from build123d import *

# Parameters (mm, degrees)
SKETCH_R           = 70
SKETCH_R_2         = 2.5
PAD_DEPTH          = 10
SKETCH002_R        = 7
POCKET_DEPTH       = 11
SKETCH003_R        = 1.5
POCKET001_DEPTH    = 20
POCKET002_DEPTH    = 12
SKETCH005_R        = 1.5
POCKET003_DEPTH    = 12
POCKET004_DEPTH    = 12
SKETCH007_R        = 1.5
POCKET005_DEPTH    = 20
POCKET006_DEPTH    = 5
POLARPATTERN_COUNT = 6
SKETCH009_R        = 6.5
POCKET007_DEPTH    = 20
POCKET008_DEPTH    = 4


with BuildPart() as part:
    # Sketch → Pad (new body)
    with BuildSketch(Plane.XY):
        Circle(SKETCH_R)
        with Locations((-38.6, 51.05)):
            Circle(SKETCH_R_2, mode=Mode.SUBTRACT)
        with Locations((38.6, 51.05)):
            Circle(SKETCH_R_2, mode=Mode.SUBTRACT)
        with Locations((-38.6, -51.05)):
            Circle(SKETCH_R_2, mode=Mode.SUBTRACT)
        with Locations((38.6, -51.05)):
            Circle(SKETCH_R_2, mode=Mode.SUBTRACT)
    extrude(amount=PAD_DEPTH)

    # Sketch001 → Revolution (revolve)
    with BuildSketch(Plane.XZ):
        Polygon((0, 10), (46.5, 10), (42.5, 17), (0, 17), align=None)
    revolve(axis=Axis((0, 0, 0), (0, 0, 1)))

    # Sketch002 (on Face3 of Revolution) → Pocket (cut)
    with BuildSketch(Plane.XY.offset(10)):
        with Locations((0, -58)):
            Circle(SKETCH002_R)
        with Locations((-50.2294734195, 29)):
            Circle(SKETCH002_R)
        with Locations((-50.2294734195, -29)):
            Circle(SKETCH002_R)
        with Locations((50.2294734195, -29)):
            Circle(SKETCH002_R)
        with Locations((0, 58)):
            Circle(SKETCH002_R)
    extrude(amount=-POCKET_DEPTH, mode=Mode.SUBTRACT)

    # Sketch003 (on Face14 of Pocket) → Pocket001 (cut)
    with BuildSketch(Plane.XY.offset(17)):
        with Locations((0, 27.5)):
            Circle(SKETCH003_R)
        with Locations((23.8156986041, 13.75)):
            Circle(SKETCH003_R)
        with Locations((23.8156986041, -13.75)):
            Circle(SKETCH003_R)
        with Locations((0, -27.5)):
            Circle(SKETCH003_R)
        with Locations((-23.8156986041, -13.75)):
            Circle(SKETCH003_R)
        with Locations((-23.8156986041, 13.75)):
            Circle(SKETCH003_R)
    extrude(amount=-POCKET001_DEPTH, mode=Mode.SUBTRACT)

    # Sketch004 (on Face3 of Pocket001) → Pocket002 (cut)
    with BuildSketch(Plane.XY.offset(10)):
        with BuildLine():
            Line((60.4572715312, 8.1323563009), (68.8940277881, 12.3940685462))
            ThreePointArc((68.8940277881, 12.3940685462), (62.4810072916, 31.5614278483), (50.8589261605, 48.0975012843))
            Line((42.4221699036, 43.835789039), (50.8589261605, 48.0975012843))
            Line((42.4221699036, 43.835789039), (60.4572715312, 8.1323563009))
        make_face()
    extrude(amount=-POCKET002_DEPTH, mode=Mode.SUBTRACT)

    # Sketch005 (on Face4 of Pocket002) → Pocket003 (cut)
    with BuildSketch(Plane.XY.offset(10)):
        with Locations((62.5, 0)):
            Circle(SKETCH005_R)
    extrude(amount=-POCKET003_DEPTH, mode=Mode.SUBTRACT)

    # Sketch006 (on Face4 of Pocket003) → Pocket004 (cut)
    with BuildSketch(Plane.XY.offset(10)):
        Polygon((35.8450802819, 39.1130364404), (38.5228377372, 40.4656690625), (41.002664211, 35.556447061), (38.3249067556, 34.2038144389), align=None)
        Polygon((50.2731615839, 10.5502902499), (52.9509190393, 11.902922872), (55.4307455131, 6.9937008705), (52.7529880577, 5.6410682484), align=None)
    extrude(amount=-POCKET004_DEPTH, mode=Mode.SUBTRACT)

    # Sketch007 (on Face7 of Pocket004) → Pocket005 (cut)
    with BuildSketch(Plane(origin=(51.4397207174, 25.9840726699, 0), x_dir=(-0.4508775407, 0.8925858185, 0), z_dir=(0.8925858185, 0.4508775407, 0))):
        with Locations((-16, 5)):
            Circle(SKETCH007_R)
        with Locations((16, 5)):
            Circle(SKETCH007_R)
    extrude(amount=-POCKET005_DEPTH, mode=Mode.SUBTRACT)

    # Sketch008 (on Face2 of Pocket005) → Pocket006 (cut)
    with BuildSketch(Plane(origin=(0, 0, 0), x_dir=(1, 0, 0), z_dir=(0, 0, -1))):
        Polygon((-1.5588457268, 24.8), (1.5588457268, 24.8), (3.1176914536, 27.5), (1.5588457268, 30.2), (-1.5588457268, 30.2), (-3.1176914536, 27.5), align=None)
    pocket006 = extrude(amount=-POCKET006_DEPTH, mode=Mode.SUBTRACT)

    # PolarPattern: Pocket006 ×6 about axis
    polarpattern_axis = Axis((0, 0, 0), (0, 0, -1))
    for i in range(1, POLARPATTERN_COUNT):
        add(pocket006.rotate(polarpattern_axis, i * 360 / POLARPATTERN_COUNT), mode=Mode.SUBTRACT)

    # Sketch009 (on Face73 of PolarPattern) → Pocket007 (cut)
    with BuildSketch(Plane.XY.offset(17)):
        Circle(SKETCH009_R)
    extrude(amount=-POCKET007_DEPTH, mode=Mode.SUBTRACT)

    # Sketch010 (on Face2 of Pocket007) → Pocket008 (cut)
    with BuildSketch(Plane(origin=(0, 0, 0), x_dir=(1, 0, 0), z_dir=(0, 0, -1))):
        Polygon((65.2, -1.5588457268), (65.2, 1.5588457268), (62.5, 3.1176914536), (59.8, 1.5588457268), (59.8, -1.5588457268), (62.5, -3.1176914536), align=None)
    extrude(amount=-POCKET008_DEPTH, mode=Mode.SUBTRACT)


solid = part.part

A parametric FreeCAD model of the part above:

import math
import FreeCAD as App
import Part
import Sketcher
Q = App.Units.Quantity


def add_polygon(sketch, points):
    """Adds a closed chain of lines whose ends are joined by coincident constraints."""
    first, n = sketch.GeometryCount, len(points)
    for a, b in zip(points, points[1:] + points[:1]):
        sketch.addGeometry(Part.LineSegment(App.Vector(*a, 0), App.Vector(*b, 0)), False)
    for i in range(n):
        sketch.addConstraint(Sketcher.Constraint("Coincident", first + i, 2, first + (i + 1) % n, 1))

doc = App.newDocument("Part")
params = doc.addObject("Spreadsheet::Sheet", "Params")
for row, (alias, value) in enumerate([
    ("sketch1_diameter", "140 mm"),
    ("sketch1_diameter2", "5 mm"),
    ("pad1_length", "10 mm"),
    ("sketch2_height", "7 mm"),
    ("sketch2_width", "46.5 mm"),
    ("sketch2_width2", "42.5 mm"),
    ("revolution_angle", "360 deg"),
    ("sketch3_diameter", "14 mm"),
    ("pocket1_length", "11 mm"),
    ("sketch4_diameter", "3 mm"),
    ("pocket2_length", "20 mm"),
    ("sketch5_radius", "70 mm"),
    ("sketch5_length", "40 mm"),
    ("pocket3_length", "12 mm"),
    ("sketch6_diameter", "3 mm"),
    ("pocket4_length", "12 mm"),
    ("sketch7_length", "3 mm"),
    ("sketch7_length2", "5.5 mm"),
    ("pocket5_length", "12 mm"),
    ("sketch8_diameter", "3 mm"),
    ("pocket6_length", "20 mm"),
    ("pocket7_length", "5 mm"),
    ("sketch10_diameter", "13 mm"),
    ("pocket8_length", "20 mm"),
    ("pocket9_length", "4 mm"),
], start=1):
    params.set(f"A{row}", alias)
    params.set(f"B{row}", "=" + value)
    params.setAlias(f"B{row}", alias)

body = doc.addObject("PartDesign::Body", "Body")

# Sketch on XY plane
sketch1 = body.newObject("Sketcher::SketchObject", "Sketch")
sketch1.AttachmentSupport = (doc.getObject("XY_Plane"), [""])
sketch1.MapMode = "FlatFace"
sketch1.addGeometry([
    Part.Circle(App.Vector(0, 0, 0), App.Vector(0, 0, 1), 70),  # 0
    Part.Circle(App.Vector(-38.6, -51, 0), App.Vector(0, 0, 1), 2.5),  # 1
    Part.Circle(App.Vector(38.6, -51, 0), App.Vector(0, 0, 1), 2.5),  # 2
    Part.Circle(App.Vector(-38.6, 51, 0), App.Vector(0, 0, 1), 2.5),  # 3
    Part.Circle(App.Vector(38.6, 51, 0), App.Vector(0, 0, 1), 2.5),  # 4
], False)
sketch1.addConstraint([
    Sketcher.Constraint("Coincident", 0, 3, -1, 1),
    Sketcher.Constraint("Equal", 1, 2),
    Sketcher.Constraint("Equal", 2, 3),
    Sketcher.Constraint("Equal", 3, 4),
    Sketcher.Constraint("Symmetric", 2, 3, 3, 3, -1, 1),
    Sketcher.Constraint("Symmetric", 1, 3, 4, 3, -1, 1),
    Sketcher.Constraint("Symmetric", 1, 3, 2, 3, -2),
    Sketcher.Constraint("Diameter", 0, Q("140 mm")),
    Sketcher.Constraint("Diameter", 1, Q("5 mm")),
    Sketcher.Constraint("DistanceX", 1, 3, -1, 1, Q("38.6 mm")),
    Sketcher.Constraint("DistanceY", 1, 3, 3, 3, Q("102.1 mm")),
])
sketch1.setExpression("Constraints[7]", "Params.sketch1_diameter")
sketch1.setExpression("Constraints[8]", "Params.sketch1_diameter2")
pad1 = body.newObject("PartDesign::Pad", "Pad")
pad1.Profile = sketch1
pad1.setExpression("Length", "Params.pad1_length")

# Sketch on XZ plane
sketch2 = body.newObject("Sketcher::SketchObject", "Sketch001")
sketch2.AttachmentSupport = (doc.getObject("XZ_Plane"), [""])
sketch2.MapMode = "FlatFace"
add_polygon(sketch2, [(0, 10), (46, 10), (42, 17), (0, 17)])  # lines 0-3
sketch2.addConstraint([
    Sketcher.Constraint("Horizontal", 0),
    Sketcher.Constraint("Horizontal", 2),
    Sketcher.Constraint("Vertical", 3),
    Sketcher.Constraint("PointOnObject", 2, 2, -2),
    Sketcher.Constraint("DistanceY", 3, 2, 3, 1, Q("7 mm")),
    Sketcher.Constraint("DistanceX", 0, 1, 0, 2, Q("46.5 mm")),
    Sketcher.Constraint("DistanceX", 2, 2, 2, 1, Q("42.5 mm")),
    Sketcher.Constraint("DistanceY", -1, 1, 0, 2, Q("10 mm")),
])
sketch2.setExpression("Constraints[8]", "Params.sketch2_height")
sketch2.setExpression("Constraints[9]", "Params.sketch2_width")
sketch2.setExpression("Constraints[10]", "Params.sketch2_width2")
revolution = body.newObject("PartDesign::Revolution", "Revolution")
revolution.Profile = sketch2
revolution.ReferenceAxis = (sketch2, ["V_Axis"])
revolution.setExpression("Angle", "Params.revolution_angle")

# Sketch on XY plane
sketch3 = body.newObject("Sketcher::SketchObject", "Sketch002")
sketch3.AttachmentSupport = (doc.getObject("XY_Plane"), [""])
sketch3.MapMode = "FlatFace"
sketch3.AttachmentOffset = App.Placement(App.Vector(0, 0, 10), App.Rotation())
sketch3.addGeometry([
    Part.Circle(App.Vector(0, -58, 0), App.Vector(0, 0, 1), 7),  # 0
    Part.Circle(App.Vector(-50, 29, 0), App.Vector(0, 0, 1), 7),  # 1
    Part.Circle(App.Vector(-50, -29, 0), App.Vector(0, 0, 1), 7),  # 2
    Part.Circle(App.Vector(50, -29, 0), App.Vector(0, 0, 1), 7),  # 3
    Part.Circle(App.Vector(0, 58, 0), App.Vector(0, 0, 1), 7),  # 4
], False)
sketch3.addConstraint([
    Sketcher.Constraint("Equal", 0, 1),
    Sketcher.Constraint("Equal", 1, 2),
    Sketcher.Constraint("Equal", 2, 3),
    Sketcher.Constraint("Equal", 3, 4),
    Sketcher.Constraint("Symmetric", 1, 3, 3, 3, -1, 1),
    Sketcher.Constraint("Symmetric", 0, 3, 4, 3, -1, 1),
    Sketcher.Constraint("Symmetric", 2, 3, 3, 3, -2),
    Sketcher.Constraint("PointOnObject", 0, 3, -2),
    Sketcher.Constraint("Diameter", 0, Q("14 mm")),
    Sketcher.Constraint("DistanceY", 0, 3, -1, 1, Q("58 mm")),
    Sketcher.Constraint("DistanceY", -1, 1, 1, 3, Q("29 mm")),
    Sketcher.Constraint("DistanceX", 1, 3, -1, 1, Q("50.229473 mm")),
])
sketch3.setExpression("Constraints[8]", "Params.sketch3_diameter")
pocket1 = body.newObject("PartDesign::Pocket", "Pocket")
pocket1.Profile = sketch3
pocket1.setExpression("Length", "Params.pocket1_length")

# Sketch on XY plane
sketch4 = body.newObject("Sketcher::SketchObject", "Sketch003")
sketch4.AttachmentSupport = (doc.getObject("XY_Plane"), [""])
sketch4.MapMode = "FlatFace"
sketch4.AttachmentOffset = App.Placement(App.Vector(0, 0, 17), App.Rotation())
sketch4.addGeometry([
    Part.Circle(App.Vector(0, 27.5, 0), App.Vector(0, 0, 1), 1.5),  # 0
    Part.Circle(App.Vector(23.8, 13.8, 0), App.Vector(0, 0, 1), 1.5),  # 1
    Part.Circle(App.Vector(23.8, -13.8, 0), App.Vector(0, 0, 1), 1.5),  # 2
    Part.Circle(App.Vector(0, -27.5, 0), App.Vector(0, 0, 1), 1.5),  # 3
    Part.Circle(App.Vector(-23.8, -13.8, 0), App.Vector(0, 0, 1), 1.5),  # 4
    Part.Circle(App.Vector(-23.8, 13.8, 0), App.Vector(0, 0, 1), 1.5),  # 5
], False)
sketch4.addConstraint([
    Sketcher.Constraint("Equal", 0, 1),
    Sketcher.Constraint("Equal", 1, 2),
    Sketcher.Constraint("Equal", 2, 3),
    Sketcher.Constraint("Equal", 3, 4),
    Sketcher.Constraint("Equal", 4, 5),
    Sketcher.Constraint("Symmetric", 0, 3, 3, 3, -1, 1),
    Sketcher.Constraint("Symmetric", 1, 3, 4, 3, -1, 1),
    Sketcher.Constraint("Symmetric", 2, 3, 5, 3, -1, 1),
    Sketcher.Constraint("Symmetric", 2, 3, 4, 3, -2),
    Sketcher.Constraint("PointOnObject", 0, 3, -2),
    Sketcher.Constraint("Diameter", 0, Q("3 mm")),
    Sketcher.Constraint("DistanceY", 3, 3, 0, 3, Q("55 mm")),
    Sketcher.Constraint("DistanceY", 2, 3, 1, 3, Q("27.5 mm")),
    Sketcher.Constraint("DistanceX", -1, 1, 1, 3, Q("23.815699 mm")),
])
sketch4.setExpression("Constraints[10]", "Params.sketch4_diameter")
pocket2 = body.newObject("PartDesign::Pocket", "Pocket001")
pocket2.Profile = sketch4
pocket2.setExpression("Length", "Params.pocket2_length")

# Sketch on XY plane
sketch5 = body.newObject("Sketcher::SketchObject", "Sketch004")
sketch5.AttachmentSupport = (doc.getObject("XY_Plane"), [""])
sketch5.MapMode = "FlatFace"
sketch5.AttachmentOffset = App.Placement(App.Vector(0, 0, 10), App.Rotation())
sketch5.addGeometry([
    Part.LineSegment(App.Vector(60, 8, 0), App.Vector(69, 12, 0)),
    Part.ArcOfCircle(Part.Circle(App.Vector(0, 0, 0), App.Vector(0, 0, 1), 70), math.radians(10), math.radians(43)),
    Part.LineSegment(App.Vector(51, 48, 0), App.Vector(42, 44, 0)),
    Part.LineSegment(App.Vector(42, 44, 0), App.Vector(60, 8, 0)),
], False)
sketch5.addConstraint([
    Sketcher.Constraint("Coincident", 0, 2, 1, 1),
    Sketcher.Constraint("Coincident", 1, 2, 2, 1),
    Sketcher.Constraint("Coincident", 2, 2, 3, 1),
    Sketcher.Constraint("Coincident", 3, 2, 0, 1),
    Sketcher.Constraint("Coincident", 1, 3, -1, 1),
    Sketcher.Constraint("Parallel", 0, 2),
    Sketcher.Constraint("Perpendicular", 2, 3),
    Sketcher.Constraint("Equal", 0, 2),
    Sketcher.Constraint("Radius", 1, Q("70 mm")),
    Sketcher.Constraint("Distance", 3, Q("40 mm")),
    Sketcher.Constraint("Angle", 0, Q("26.8 deg")),
    Sketcher.Constraint("Distance", 0, Q("9.452039 mm")),
])
sketch5.setExpression("Constraints[8]", "Params.sketch5_radius")
sketch5.setExpression("Constraints[9]", "Params.sketch5_length")
pocket3 = body.newObject("PartDesign::Pocket", "Pocket002")
pocket3.Profile = sketch5
pocket3.setExpression("Length", "Params.pocket3_length")

# Sketch on XY plane
sketch6 = body.newObject("Sketcher::SketchObject", "Sketch005")
sketch6.AttachmentSupport = (doc.getObject("XY_Plane"), [""])
sketch6.MapMode = "FlatFace"
sketch6.AttachmentOffset = App.Placement(App.Vector(0, 0, 10), App.Rotation())
sketch6.addGeometry(Part.Circle(App.Vector(62.5, 0, 0), App.Vector(0, 0, 1), 1.5), False)
sketch6.addConstraint([
    Sketcher.Constraint("PointOnObject", 0, 3, -1),
    Sketcher.Constraint("Diameter", 0, Q("3 mm")),
    Sketcher.Constraint("DistanceX", -1, 1, 0, 3, Q("62.5 mm")),
])
sketch6.setExpression("Constraints[1]", "Params.sketch6_diameter")
pocket4 = body.newObject("PartDesign::Pocket", "Pocket003")
pocket4.Profile = sketch6
pocket4.setExpression("Length", "Params.pocket4_length")

# Sketch on XY plane
sketch7 = body.newObject("Sketcher::SketchObject", "Sketch006")
sketch7.AttachmentSupport = (doc.getObject("XY_Plane"), [""])
sketch7.MapMode = "FlatFace"
sketch7.AttachmentOffset = App.Placement(App.Vector(0, 0, 10), App.Rotation())
add_polygon(sketch7, [(38.5, 40.5), (35.8, 39.1), (38.3, 34.2), (41, 35.6)])  # lines 0-3
add_polygon(sketch7, [(53, 11.9), (50.3, 10.6), (52.8, 5.6), (55.4, 7)])  # lines 4-7
sketch7.addConstraint([
    Sketcher.Constraint("Perpendicular", 0, 1),
    Sketcher.Constraint("Perpendicular", 1, 2),
    Sketcher.Constraint("Perpendicular", 2, 3),
    Sketcher.Constraint("Perpendicular", 3, 4),
    Sketcher.Constraint("Perpendicular", 4, 5),
    Sketcher.Constraint("Perpendicular", 5, 6),
    Sketcher.Constraint("Perpendicular", 6, 7),
    Sketcher.Constraint("Equal", 2, 4),
    Sketcher.Constraint("Equal", 3, 5),
    Sketcher.Constraint("Distance", 0, Q("3 mm")),
    Sketcher.Constraint("Angle", 0, Q("-153.2 deg")),
    Sketcher.Constraint("Distance", 1, Q("5.5 mm")),
    Sketcher.Constraint("DistanceY", -1, 1, 6, 2, Q("6.993701 mm")),
    Sketcher.Constraint("DistanceY", 5, 2, 3, 2, Q("34.824601 mm")),
    Sketcher.Constraint("DistanceX", -1, 1, 0, 2, Q("35.84508 mm")),
    Sketcher.Constraint("DistanceX", -1, 1, 4, 2, Q("50.273162 mm")),
])
sketch7.setExpression("Constraints[17]", "Params.sketch7_length")
sketch7.setExpression("Constraints[19]", "Params.sketch7_length2")
pocket5 = body.newObject("PartDesign::Pocket", "Pocket004")
pocket5.Profile = sketch7
pocket5.setExpression("Length", "Params.pocket5_length")

# Sketch on an angled plane
sketch8 = body.newObject("Sketcher::SketchObject", "Sketch007")
sketch8.Placement = App.Placement(App.Vector(51.439721, 25.984073, 0), App.Rotation(App.Vector(-0.450877541, 0.892585818, 0), App.Vector(0, 0, 0.999999999), App.Vector(0.892585818, 0.450877541, 0), "ZXY"))
sketch8.addGeometry([
    Part.Circle(App.Vector(-16, 5, 0), App.Vector(0, 0, 1), 1.5),
    Part.Circle(App.Vector(16, 5, 0), App.Vector(0, 0, 1), 1.5),
], False)
sketch8.addConstraint([
    Sketcher.Constraint("Equal", 0, 1),
    Sketcher.Constraint("Symmetric", 0, 3, 1, 3, -2),
    Sketcher.Constraint("Diameter", 0, Q("3 mm")),
    Sketcher.Constraint("DistanceX", 0, 3, -1, 1, Q("16 mm")),
    Sketcher.Constraint("DistanceY", -1, 1, 0, 3, Q("5 mm")),
])
sketch8.setExpression("Constraints[2]", "Params.sketch8_diameter")
pocket6 = body.newObject("PartDesign::Pocket", "Pocket005")
pocket6.Profile = sketch8
pocket6.setExpression("Length", "Params.pocket6_length")

# Sketch on XY plane
sketch9 = body.newObject("Sketcher::SketchObject", "Sketch008")
sketch9.AttachmentSupport = (doc.getObject("XY_Plane"), [""])
sketch9.MapMode = "FlatFace"
add_polygon(sketch9, [(-1.6, -24.8), (1.6, -24.8), (3.1, -27.5), (1.6, -30.2), (-1.6, -30.2), (-3.1, -27.5)])  # lines 0-5
sketch9.addConstraint([
    Sketcher.Constraint("Horizontal", 0),
    Sketcher.Constraint("Horizontal", 3),
    Sketcher.Constraint("Symmetric", 1, 2, 4, 2, -2),
    Sketcher.Constraint("Parallel", 1, 4),
    Sketcher.Constraint("Parallel", 2, 5),
    Sketcher.Constraint("Vertical", 0, 2, 2, 2),
    Sketcher.Constraint("Vertical", 3, 2, 5, 2),
    Sketcher.Constraint("Angle", 1, Q("-60 deg")),
    Sketcher.Constraint("DistanceY", 0, 2, -1, 1, Q("24.8 mm")),
    Sketcher.Constraint("DistanceY", 1, 2, -1, 1, Q("27.5 mm")),
    Sketcher.Constraint("DistanceX", 0, 1, 0, 2, Q("3.117691 mm")),
])
pocket7 = body.newObject("PartDesign::Pocket", "Pocket006")
pocket7.Profile = sketch9
pocket7.setExpression("Length", "Params.pocket7_length")
pocket7.Reversed = True
doc.recompute()

polarpattern = body.newObject("PartDesign::PolarPattern", "PolarPattern")
polarpattern.Originals = [pocket7]
polarpattern.Axis = (doc.getObject("Z_Axis"), [""])
polarpattern.Angle = 360
polarpattern.Occurrences = 6
body.Tip = polarpattern

# Sketch on XY plane
sketch10 = body.newObject("Sketcher::SketchObject", "Sketch009")
sketch10.AttachmentSupport = (doc.getObject("XY_Plane"), [""])
sketch10.MapMode = "FlatFace"
sketch10.AttachmentOffset = App.Placement(App.Vector(0, 0, 17), App.Rotation())
sketch10.addGeometry(Part.Circle(App.Vector(0, 0, 0), App.Vector(0, 0, 1), 6), False)
sketch10.addConstraint([
    Sketcher.Constraint("Coincident", 0, 3, -1, 1),
    Sketcher.Constraint("Diameter", 0, Q("13 mm")),
])
sketch10.setExpression("Constraints[1]", "Params.sketch10_diameter")
pocket8 = body.newObject("PartDesign::Pocket", "Pocket007")
pocket8.Profile = sketch10
pocket8.setExpression("Length", "Params.pocket8_length")

# Sketch on XY plane
sketch11 = body.newObject("Sketcher::SketchObject", "Sketch010")
sketch11.AttachmentSupport = (doc.getObject("XY_Plane"), [""])
sketch11.MapMode = "FlatFace"
add_polygon(sketch11, [(65.2, 1.6), (65.2, -1.6), (62.5, -3.1), (59.8, -1.6), (59.8, 1.6), (62.5, 3.1)])  # lines 0-5
sketch11.addConstraint([
    Sketcher.Constraint("Vertical", 0),
    Sketcher.Constraint("Vertical", 3),
    Sketcher.Constraint("Symmetric", 1, 2, 4, 2, -1),
    Sketcher.Constraint("Parallel", 1, 4),
    Sketcher.Constraint("Parallel", 2, 5),
    Sketcher.Constraint("Horizontal", 0, 2, 2, 2),
    Sketcher.Constraint("Horizontal", 3, 2, 5, 2),
    Sketcher.Constraint("Angle", 1, Q("-150 deg")),
    Sketcher.Constraint("DistanceX", -1, 1, 0, 2, Q("65.2 mm")),
    Sketcher.Constraint("DistanceX", -1, 1, 1, 2, Q("62.5 mm")),
    Sketcher.Constraint("DistanceY", 0, 2, 0, 1, Q("3.117691 mm")),
])
pocket9 = body.newObject("PartDesign::Pocket", "Pocket008")
pocket9.Profile = sketch11
pocket9.setExpression("Length", "Params.pocket9_length")
pocket9.Reversed = True

doc.recompute()
